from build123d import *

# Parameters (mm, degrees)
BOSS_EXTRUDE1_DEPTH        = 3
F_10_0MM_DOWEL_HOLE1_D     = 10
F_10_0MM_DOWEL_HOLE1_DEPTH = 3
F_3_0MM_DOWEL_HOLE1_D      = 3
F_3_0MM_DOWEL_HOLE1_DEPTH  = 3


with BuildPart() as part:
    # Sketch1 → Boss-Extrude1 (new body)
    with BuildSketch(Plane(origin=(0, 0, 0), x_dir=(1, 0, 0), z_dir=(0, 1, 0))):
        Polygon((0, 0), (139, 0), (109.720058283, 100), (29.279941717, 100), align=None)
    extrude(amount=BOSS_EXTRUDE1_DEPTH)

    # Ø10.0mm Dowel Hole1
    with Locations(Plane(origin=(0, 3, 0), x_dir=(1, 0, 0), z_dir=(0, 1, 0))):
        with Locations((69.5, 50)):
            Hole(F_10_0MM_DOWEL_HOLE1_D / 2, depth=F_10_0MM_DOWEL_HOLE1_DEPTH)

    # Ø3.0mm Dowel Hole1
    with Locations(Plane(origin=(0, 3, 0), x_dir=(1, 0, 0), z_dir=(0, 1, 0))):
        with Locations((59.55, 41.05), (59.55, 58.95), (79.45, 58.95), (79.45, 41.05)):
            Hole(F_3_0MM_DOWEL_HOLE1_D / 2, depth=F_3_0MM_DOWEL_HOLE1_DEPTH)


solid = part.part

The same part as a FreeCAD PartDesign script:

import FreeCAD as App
import Part
import Sketcher
from FreeCAD import Vector
Q = App.Units.Quantity

doc = App.newDocument("Part")
body = doc.addObject("PartDesign::Body", "Body")

# Sketch on XZ plane
sketch1 = doc.addObject("Sketcher::SketchObject", "Sketch")
body.addObject(sketch1)
sketch1.AttachmentSupport = (doc.XZ_Plane, [""])
sketch1.MapMode = "FlatFace"
sketch1.addGeometry(Part.LineSegment(Vector(0, 0, 0), Vector(139, 0, 0)), False)
sketch1.addGeometry(Part.LineSegment(Vector(139, 0, 0), Vector(110, -100, 0)), False)
sketch1.addGeometry(Part.LineSegment(Vector(110, -100, 0), Vector(29, -100, 0)), False)
sketch1.addGeometry(Part.LineSegment(Vector(29, -100, 0), Vector(0, 0, 0)), False)
sketch1.addConstraint(Sketcher.Constraint("Coincident", 0, 2, 1, 1))
sketch1.addConstraint(Sketcher.Constraint("Coincident", 1, 2, 2, 1))
sketch1.addConstraint(Sketcher.Constraint("Coincident", 2, 2, 3, 1))
sketch1.addConstraint(Sketcher.Constraint("Coincident", 3, 2, 0, 1))
sketch1.addConstraint(Sketcher.Constraint("Horizontal", 0))
sketch1.addConstraint(Sketcher.Constraint("Horizontal", 2))
sketch1.addConstraint(Sketcher.Constraint("Coincident", 3, 2, -1, 1))
sketch1.addConstraint(Sketcher.Constraint("Equal", 1, 3))
sketch1.addConstraint(Sketcher.Constraint("DistanceX", 0, 1, 0, 2, Q("139 mm")))
sketch1.addConstraint(Sketcher.Constraint("DistanceY", 1, 2, -1, 1, Q("100 mm")))
sketch1.addConstraint(Sketcher.Constraint("Angle", 1, Q("-106.32 deg")))
pad1 = doc.addObject("PartDesign::Pad", "Pad")
body.addObject(pad1)
pad1.Profile = sketch1
pad1.Length = 3
pad1.Reversed = True

# Sketch on XZ plane
sketch2 = doc.addObject("Sketcher::SketchObject", "Sketch001")
body.addObject(sketch2)
sketch2.AttachmentSupport = (doc.XZ_Plane, [""])
sketch2.MapMode = "FlatFace"
sketch2.AttachmentOffset = App.Placement(Vector(0, 0, -3), App.Rotation())
sketch2.addGeometry(Part.Circle(Vector(70, -50, 0), Vector(0, 0, 1), 5), False)
sketch2.addConstraint(Sketcher.Constraint("Diameter", 0, Q("10 mm")))
sketch2.addConstraint(Sketcher.Constraint("DistanceY", 0, 3, -1, 1, Q("50 mm")))
sketch2.addConstraint(Sketcher.Constraint("DistanceX", -1, 1, 0, 3, Q("69.5 mm")))
doc.recompute()
hole = doc.addObject("PartDesign::Hole", "Hole")
body.addObject(hole)
hole.Profile = sketch2
hole.ThreadType = "None"
hole.Diameter = 10
hole.DepthType = "Dimension"
hole.Depth = 3
hole.DrillPoint = "Flat"
hole.Reversed = True

# Sketch on XZ plane
sketch3 = doc.addObject("Sketcher::SketchObject", "Sketch002")
body.addObject(sketch3)
sketch3.AttachmentSupport = (doc.XZ_Plane, [""])
sketch3.MapMode = "FlatFace"
sketch3.AttachmentOffset = App.Placement(Vector(0, 0, -3), App.Rotation())
sketch3.addGeometry(Part.Circle(Vector(59.5, -41, 0), Vector(0, 0, 1), 1.5), False)
sketch3.addGeometry(Part.Circle(Vector(59.5, -59, 0), Vector(0, 0, 1), 1.5), False)
sketch3.addGeometry(Part.Circle(Vector(79.5, -59, 0), Vector(0, 0, 1), 1.5), False)
sketch3.addGeometry(Part.Circle(Vector(79.5, -41, 0), Vector(0, 0, 1), 1.5), False)
sketch3.addConstraint(Sketcher.Constraint("Equal", 0, 1))
sketch3.addConstraint(Sketcher.Constraint("Equal", 1, 2))
sketch3.addConstraint(Sketcher.Constraint("Equal", 2, 3))
sketch3.addConstraint(Sketcher.Constraint("Horizontal", 1, 3, 2, 3))
sketch3.addConstraint(Sketcher.Constraint("Horizontal", 0, 3, 3, 3))
sketch3.addConstraint(Sketcher.Constraint("Vertical", 0, 3, 1, 3))
sketch3.addConstraint(Sketcher.Constraint("Vertical", 2, 3, 3, 3))
sketch3.addConstraint(Sketcher.Constraint("Diameter", 0, Q("3 mm")))
sketch3.addConstraint(Sketcher.Constraint("DistanceY", 1, 3, 0, 3, Q("17.9 mm")))
sketch3.addConstraint(Sketcher.Constraint("DistanceX", 1, 3, 2, 3, Q("19.9 mm")))
sketch3.addConstraint(Sketcher.Constraint("DistanceX", -1, 1, 0, 3, Q("59.55 mm")))
sketch3.addConstraint(Sketcher.Constraint("DistanceY", 0, 3, -1, 1, Q("41.05 mm")))
doc.recompute()
hole2 = doc.addObject("PartDesign::Hole", "Hole001")
body.addObject(hole2)
hole2.Profile = sketch3
hole2.ThreadType = "None"
hole2.Diameter = 3
hole2.DepthType = "Dimension"
hole2.Depth = 3
hole2.DrillPoint = "Flat"
hole2.Reversed = True

doc.recompute()
